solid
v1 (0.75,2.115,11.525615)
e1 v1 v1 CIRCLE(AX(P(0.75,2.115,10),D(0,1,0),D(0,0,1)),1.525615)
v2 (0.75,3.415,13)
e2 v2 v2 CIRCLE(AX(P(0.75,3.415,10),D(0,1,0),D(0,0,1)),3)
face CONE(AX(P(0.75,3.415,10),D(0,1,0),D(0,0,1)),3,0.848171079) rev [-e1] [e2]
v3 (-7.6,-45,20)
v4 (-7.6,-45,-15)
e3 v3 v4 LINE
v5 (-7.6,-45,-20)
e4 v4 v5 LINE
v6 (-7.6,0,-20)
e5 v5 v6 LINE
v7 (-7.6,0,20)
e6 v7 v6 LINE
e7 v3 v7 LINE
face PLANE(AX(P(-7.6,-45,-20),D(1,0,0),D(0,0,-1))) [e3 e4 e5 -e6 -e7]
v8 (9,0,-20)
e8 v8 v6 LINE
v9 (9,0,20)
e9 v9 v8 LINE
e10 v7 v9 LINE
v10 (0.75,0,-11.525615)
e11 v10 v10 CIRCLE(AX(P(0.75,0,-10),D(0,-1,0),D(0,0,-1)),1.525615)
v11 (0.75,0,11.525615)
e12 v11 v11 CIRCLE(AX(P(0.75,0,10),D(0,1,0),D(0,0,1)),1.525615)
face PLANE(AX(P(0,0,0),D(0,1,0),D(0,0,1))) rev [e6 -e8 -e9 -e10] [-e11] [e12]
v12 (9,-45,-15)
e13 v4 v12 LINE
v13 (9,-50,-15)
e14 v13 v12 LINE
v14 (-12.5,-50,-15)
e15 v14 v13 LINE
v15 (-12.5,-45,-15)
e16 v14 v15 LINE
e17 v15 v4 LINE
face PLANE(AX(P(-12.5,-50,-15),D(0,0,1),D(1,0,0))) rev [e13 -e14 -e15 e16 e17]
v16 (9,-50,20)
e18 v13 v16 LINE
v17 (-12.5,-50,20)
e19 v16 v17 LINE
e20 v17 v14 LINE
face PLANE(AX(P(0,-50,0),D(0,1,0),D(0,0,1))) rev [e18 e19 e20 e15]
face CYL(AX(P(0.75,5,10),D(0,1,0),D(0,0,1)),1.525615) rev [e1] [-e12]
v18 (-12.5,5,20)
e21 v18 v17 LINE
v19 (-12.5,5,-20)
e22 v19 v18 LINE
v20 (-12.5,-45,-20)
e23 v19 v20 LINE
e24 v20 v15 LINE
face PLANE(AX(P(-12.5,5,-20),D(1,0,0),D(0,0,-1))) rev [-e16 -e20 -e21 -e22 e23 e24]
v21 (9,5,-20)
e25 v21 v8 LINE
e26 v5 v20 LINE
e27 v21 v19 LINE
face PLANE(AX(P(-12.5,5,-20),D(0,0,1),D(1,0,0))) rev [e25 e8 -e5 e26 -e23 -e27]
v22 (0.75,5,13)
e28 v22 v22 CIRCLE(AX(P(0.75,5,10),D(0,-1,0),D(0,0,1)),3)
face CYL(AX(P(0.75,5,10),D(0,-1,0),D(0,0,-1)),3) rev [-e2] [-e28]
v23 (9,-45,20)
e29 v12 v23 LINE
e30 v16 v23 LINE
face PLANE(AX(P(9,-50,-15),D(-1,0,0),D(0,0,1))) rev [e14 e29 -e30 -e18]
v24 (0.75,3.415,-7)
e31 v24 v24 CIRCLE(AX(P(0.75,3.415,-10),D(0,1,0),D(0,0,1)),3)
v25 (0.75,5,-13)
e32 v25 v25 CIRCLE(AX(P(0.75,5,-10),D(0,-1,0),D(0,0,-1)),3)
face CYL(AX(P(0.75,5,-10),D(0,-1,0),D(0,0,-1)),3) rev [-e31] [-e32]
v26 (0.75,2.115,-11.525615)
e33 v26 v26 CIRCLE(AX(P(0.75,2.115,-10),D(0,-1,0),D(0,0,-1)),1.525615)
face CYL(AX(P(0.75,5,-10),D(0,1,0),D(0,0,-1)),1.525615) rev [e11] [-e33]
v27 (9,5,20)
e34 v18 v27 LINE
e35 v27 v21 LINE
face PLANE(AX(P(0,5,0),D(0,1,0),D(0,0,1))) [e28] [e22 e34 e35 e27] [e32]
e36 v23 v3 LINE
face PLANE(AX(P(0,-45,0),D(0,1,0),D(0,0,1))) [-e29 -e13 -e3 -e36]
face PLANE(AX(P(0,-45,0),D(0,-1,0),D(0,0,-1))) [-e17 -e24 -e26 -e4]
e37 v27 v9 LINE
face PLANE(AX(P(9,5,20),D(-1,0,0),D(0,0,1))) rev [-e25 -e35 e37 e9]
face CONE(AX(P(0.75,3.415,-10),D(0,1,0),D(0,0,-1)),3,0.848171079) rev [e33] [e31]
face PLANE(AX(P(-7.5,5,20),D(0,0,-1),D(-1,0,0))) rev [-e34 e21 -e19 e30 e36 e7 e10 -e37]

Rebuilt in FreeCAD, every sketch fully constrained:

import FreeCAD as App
import Part
import Sketcher
from FreeCAD import Vector

doc = App.newDocument("Part")
body = doc.addObject("PartDesign::Body", "Body")

sketch1 = doc.addObject("Sketcher::SketchObject", "Sketch")
body.addObject(sketch1)
sketch1.AttachmentSupport = (doc.XZ_Plane, [""])
sketch1.MapMode = "FlatFace"
sketch1.addGeometry([
    Part.LineSegment(Vector(9, 20, 0), Vector(9, -20, 0)),
    Part.LineSegment(Vector(9, -20, 0), Vector(-12, -20, 0)),
    Part.LineSegment(Vector(-12, -20, 0), Vector(-12, 20, 0)),
    Part.LineSegment(Vector(-12, 20, 0), Vector(9, 20, 0)),
], False)
sketch1.addConstraint([
    Sketcher.Constraint("Coincident", 0, 2, 1, 1),
    Sketcher.Constraint("Coincident", 1, 2, 2, 1),
    Sketcher.Constraint("Coincident", 2, 2, 3, 1),
    Sketcher.Constraint("Coincident", 3, 2, 0, 1),
    Sketcher.Constraint("Vertical", 0),
    Sketcher.Constraint("Horizontal", 1),
    Sketcher.Constraint("Vertical", 2),
    Sketcher.Constraint("Horizontal", 3),
    Sketcher.Constraint("DistanceY", 0, 2, 0, 1, 40.0),
    Sketcher.Constraint("DistanceX", 1, 2, 1, 1, 21.5),
    Sketcher.Constraint("DistanceX", -1, 1, 0, 2, 9.0),
    Sketcher.Constraint("DistanceY", 0, 2, -1, 1, 20.0),
])
pad1 = doc.addObject("PartDesign::Pad", "Pad")
body.addObject(pad1)
pad1.Profile = sketch1
pad1.Length = 5
pad1.Reversed = True

sketch2 = doc.addObject("Sketcher::SketchObject", "Sketch001")
body.addObject(sketch2)
sketch2.AttachmentSupport = (doc.XZ_Plane, [""])
sketch2.MapMode = "FlatFace"
sketch2.addGeometry([
    Part.LineSegment(Vector(-12.5, -20, 0), Vector(-12.5, 20, 0)),
    Part.LineSegment(Vector(-12.5, 20, 0), Vector(-7.6, 20, 0)),
    Part.LineSegment(Vector(-7.6, 20, 0), Vector(-7.6, -20, 0)),
    Part.LineSegment(Vector(-7.6, -20, 0), Vector(-12.5, -20, 0)),
], False)
sketch2.addConstraint([
    Sketcher.Constraint("Coincident", 0, 2, 1, 1),
    Sketcher.Constraint("Coincident", 1, 2, 2, 1),
    Sketcher.Constraint("Coincident", 2, 2, 3, 1),
    Sketcher.Constraint("Coincident", 3, 2, 0, 1),
    Sketcher.Constraint("Vertical", 0),
    Sketcher.Constraint("Horizontal", 1),
    Sketcher.Constraint("Vertical", 2),
    Sketcher.Constraint("Horizontal", 3),
    Sketcher.Constraint("DistanceY", 0, 1, 0, 2, 40.0),
    Sketcher.Constraint("DistanceX", 1, 1, 1, 2, 4.9),
    Sketcher.Constraint("DistanceY", -1, 1, 0, 2, 20.0),
    Sketcher.Constraint("DistanceX", 0, 2, -1, 1, 12.5),
])
pad2 = doc.addObject("PartDesign::Pad", "Pad001")
body.addObject(pad2)
pad2.Profile = sketch2
pad2.Length = 45

sketch3 = doc.addObject("Sketcher::SketchObject", "Sketch002")
body.addObject(sketch3)
sketch3.AttachmentSupport = (doc.XZ_Plane, [""])
sketch3.MapMode = "FlatFace"
sketch3.AttachmentOffset = App.Placement(Vector(0, 0, 45), App.Rotation())
sketch3.addGeometry([
    Part.LineSegment(Vector(-12, 20, 0), Vector(-12, -15, 0)),
    Part.LineSegment(Vector(-12, -15, 0), Vector(9, -15, 0)),
    Part.LineSegment(Vector(9, -15, 0), Vector(9, 20, 0)),
    Part.LineSegment(Vector(9, 20, 0), Vector(-12, 20, 0)),
], False)
sketch3.addConstraint([
    Sketcher.Constraint("Coincident", 0, 2, 1, 1),
    Sketcher.Constraint("Coincident", 1, 2, 2, 1),
    Sketcher.Constraint("Coincident", 2, 2, 3, 1),
    Sketcher.Constraint("Coincident", 3, 2, 0, 1),
    Sketcher.Constraint("Vertical", 0),
    Sketcher.Constraint("Horizontal", 1),
    Sketcher.Constraint("Vertical", 2),
    Sketcher.Constraint("Horizontal", 3),
    Sketcher.Constraint("DistanceY", 0, 2, 0, 1, 35.0),
    Sketcher.Constraint("DistanceX", 1, 1, 1, 2, 21.5),
    Sketcher.Constraint("DistanceY", 0, 2, -1, 1, 15.0),
    Sketcher.Constraint("DistanceX", -1, 1, 1, 2, 9.0),
])
pad3 = doc.addObject("PartDesign::Pad", "Pad002")
body.addObject(pad3)
pad3.Profile = sketch3
pad3.Length = 5

sketch4 = doc.addObject("Sketcher::SketchObject", "Sketch003")
body.addObject(sketch4)
sketch4.AttachmentSupport = (doc.XZ_Plane, [""])
sketch4.MapMode = "FlatFace"
sketch4.addGeometry([
    Part.Circle(Vector(0.8, -10, 0), Vector(0, 0, 1), 3),
    Part.Circle(Vector(0.8, 10, 0), Vector(0, 0, 1), 3),
], False)
sketch4.addConstraint([
    Sketcher.Constraint("Equal", 0, 1),
    Sketcher.Constraint("Symmetric", 0, 3, 1, 3, -1),
    Sketcher.Constraint("Diameter", 0, 6.0),
    Sketcher.Constraint("DistanceY", 0, 3, -1, 1, 10.0),
    Sketcher.Constraint("DistanceX", -1, 1, 0, 3, 0.75),
])
pocket1 = doc.addObject("PartDesign::Pocket", "Pocket")
body.addObject(pocket1)
pocket1.Profile = sketch4
pocket1.Length = 5

sketch5 = doc.addObject("Sketcher::SketchObject", "Sketch004")
body.addObject(sketch5)
sketch5.AttachmentSupport = (doc.YZ_Plane, [""])
sketch5.MapMode = "FlatFace"
sketch5.AttachmentOffset = App.Placement(Vector(0, 0, 0.75), App.Rotation())
sketch5.addGeometry([
    Part.LineSegment(Vector(3.4, 13, 0), Vector(2.1, 11.5, 0)),
    Part.LineSegment(Vector(2.1, 11.5, 0), Vector(0, 11.5, 0)),
    Part.LineSegment(Vector(0, 11.5, 0), Vector(0, 13, 0)),
    Part.LineSegment(Vector(0, 13, 0), Vector(3.4, 13, 0)),
], False)
sketch5.addGeometry(Part.LineSegment(Vector(3.4, 10, 0), Vector(0, 10, 0)), True)
sketch5.addConstraint([
    Sketcher.Constraint("Coincident", 0, 2, 1, 1),
    Sketcher.Constraint("Coincident", 1, 2, 2, 1),
    Sketcher.Constraint("Coincident", 2, 2, 3, 1),
    Sketcher.Constraint("Coincident", 3, 2, 0, 1),
    Sketcher.Constraint("Horizontal", 1),
    Sketcher.Constraint("Vertical", 2),
    Sketcher.Constraint("Horizontal", 3),
    Sketcher.Constraint("Horizontal", 4),
    Sketcher.Constraint("PointOnObject", 1, 2, -2),
    Sketcher.Constraint("PointOnObject", 4, 2, -2),
    Sketcher.Constraint("Vertical", 3, 2, 4, 1),
    Sketcher.Constraint("DistanceY", -1, 1, 2, 2, 13.0),
    Sketcher.Constraint("DistanceY", -1, 1, 4, 1, 10.0),
    Sketcher.Constraint("DistanceX", 0, 2, 3, 2, 1.3),
    Sketcher.Constraint("DistanceX", 1, 2, 1, 1, 2.115),
    Sketcher.Constraint("Distance", 0, 1.965658),
])
revolution = doc.addObject("PartDesign::Revolution", "Revolution")
body.addObject(revolution)
revolution.Profile = sketch5
revolution.ReferenceAxis = (sketch5, ["Axis0"])
revolution.Angle = 360
doc.recompute()

mirrored = doc.addObject("PartDesign::Mirrored", "Mirrored")
body.addObject(mirrored)
mirrored.Originals = [revolution]
mirrored.MirrorPlane = (doc.XY_Plane, [""])
body.Tip = mirrored

doc.recompute()
